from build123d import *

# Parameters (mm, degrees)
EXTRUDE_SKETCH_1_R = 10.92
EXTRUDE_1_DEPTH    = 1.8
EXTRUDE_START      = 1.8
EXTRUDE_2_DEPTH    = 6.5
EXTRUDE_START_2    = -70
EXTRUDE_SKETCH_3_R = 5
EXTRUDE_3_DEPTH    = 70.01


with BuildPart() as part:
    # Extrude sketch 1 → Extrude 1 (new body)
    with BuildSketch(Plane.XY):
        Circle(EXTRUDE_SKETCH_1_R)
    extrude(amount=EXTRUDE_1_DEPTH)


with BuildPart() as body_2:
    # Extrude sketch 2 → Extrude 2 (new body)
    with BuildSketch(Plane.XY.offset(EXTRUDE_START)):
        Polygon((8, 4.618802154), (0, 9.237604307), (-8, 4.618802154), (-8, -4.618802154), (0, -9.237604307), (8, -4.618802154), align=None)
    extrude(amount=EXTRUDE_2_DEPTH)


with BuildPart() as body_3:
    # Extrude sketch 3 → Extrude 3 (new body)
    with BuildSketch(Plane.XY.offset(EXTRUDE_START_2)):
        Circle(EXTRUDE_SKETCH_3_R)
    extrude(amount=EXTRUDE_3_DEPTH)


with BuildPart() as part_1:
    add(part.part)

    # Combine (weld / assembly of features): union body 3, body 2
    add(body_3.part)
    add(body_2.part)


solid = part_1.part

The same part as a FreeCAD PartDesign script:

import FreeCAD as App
import Part
import Sketcher
from FreeCAD import Vector
Q = App.Units.Quantity


def add_polygon(sketch, points):
    """Adds a closed chain of lines whose ends are joined by coincident constraints."""
    first, n = sketch.GeometryCount, len(points)
    for a, b in zip(points, points[1:] + points[:1]):
        sketch.addGeometry(Part.LineSegment(App.Vector(*a, 0), App.Vector(*b, 0)), False)
    for i in range(n):
        sketch.addConstraint(Sketcher.Constraint("Coincident", first + i, 2, first + (i + 1) % n, 1))

doc = App.newDocument("Part")
body = doc.addObject("PartDesign::Body", "Body")

# Sketch on XY plane
sketch1 = doc.addObject("Sketcher::SketchObject", "Sketch")
body.addObject(sketch1)
sketch1.AttachmentSupport = (doc.XY_Plane, [""])
sketch1.MapMode = "FlatFace"
sketch1.addGeometry(Part.Circle(Vector(0, 0, 0), Vector(0, 0, 1), 11), False)
sketch1.addConstraint([
    Sketcher.Constraint("Coincident", 0, 3, -1, 1),
    Sketcher.Constraint("Diameter", 0, 21.84),
])
pad1 = doc.addObject("PartDesign::Pad", "Pad")
body.addObject(pad1)
pad1.Profile = sketch1
pad1.Length = 1.8
body2 = doc.addObject("PartDesign::Body", "Body001")

# Sketch on XY plane
sketch2 = doc.addObject("Sketcher::SketchObject", "Sketch001")
body2.addObject(sketch2)
sketch2.AttachmentSupport = (doc.getObject("XY_Plane001"), [""])
sketch2.MapMode = "FlatFace"
sketch2.AttachmentOffset = App.Placement(Vector(0, 0, 1.8), App.Rotation())
add_polygon(sketch2, [(8, 5), (0, 9), (-8, 5), (-8, -5), (0, -9), (8, -5)])  # lines 0-5
sketch2.addConstraint([
    Sketcher.Constraint("Vertical", 2),
    Sketcher.Constraint("Vertical", 5),
    Sketcher.Constraint("Symmetric", 0, 2, 3, 2, -1, 1),
    Sketcher.Constraint("Symmetric", 1, 2, 4, 2, -1, 1),
    Sketcher.Constraint("PointOnObject", 0, 2, -2),
    Sketcher.Constraint("Parallel", 0, 3),
    Sketcher.Constraint("Horizontal", 2, 2, 4, 2),
    Sketcher.Constraint("Angle", 0, Q("150 deg")),
    Sketcher.Constraint("DistanceX", 1, 2, -1, 1, 8.0),
    Sketcher.Constraint("DistanceY", 2, 2, 2, 1, 9.237604),
])
pad2 = doc.addObject("PartDesign::Pad", "Pad001")
body2.addObject(pad2)
pad2.Profile = sketch2
pad2.Length = 6.5
body3 = doc.addObject("PartDesign::Body", "Body002")

# Sketch on XY plane
sketch3 = doc.addObject("Sketcher::SketchObject", "Sketch002")
body3.addObject(sketch3)
sketch3.AttachmentSupport = (doc.getObject("XY_Plane002"), [""])
sketch3.MapMode = "FlatFace"
sketch3.AttachmentOffset = App.Placement(Vector(0, 0, -70), App.Rotation())
sketch3.addGeometry(Part.Circle(Vector(0, 0, 0), Vector(0, 0, 1), 5), False)
sketch3.addConstraint([
    Sketcher.Constraint("Coincident", 0, 3, -1, 1),
    Sketcher.Constraint("Diameter", 0, 10.0),
])
pad3 = doc.addObject("PartDesign::Pad", "Pad002")
body3.addObject(pad3)
pad3.Profile = sketch3
pad3.Length = 70.01
doc.recompute()

boolean = doc.addObject("PartDesign::Boolean", "Boolean")
body.addObject(boolean)
boolean.Type = "Fuse"
boolean.addObjects([body3])
doc.recompute()

boolean2 = doc.addObject("PartDesign::Boolean", "Boolean001")
body.addObject(boolean2)
boolean2.Type = "Fuse"
boolean2.addObjects([body2])

doc.recompute()
